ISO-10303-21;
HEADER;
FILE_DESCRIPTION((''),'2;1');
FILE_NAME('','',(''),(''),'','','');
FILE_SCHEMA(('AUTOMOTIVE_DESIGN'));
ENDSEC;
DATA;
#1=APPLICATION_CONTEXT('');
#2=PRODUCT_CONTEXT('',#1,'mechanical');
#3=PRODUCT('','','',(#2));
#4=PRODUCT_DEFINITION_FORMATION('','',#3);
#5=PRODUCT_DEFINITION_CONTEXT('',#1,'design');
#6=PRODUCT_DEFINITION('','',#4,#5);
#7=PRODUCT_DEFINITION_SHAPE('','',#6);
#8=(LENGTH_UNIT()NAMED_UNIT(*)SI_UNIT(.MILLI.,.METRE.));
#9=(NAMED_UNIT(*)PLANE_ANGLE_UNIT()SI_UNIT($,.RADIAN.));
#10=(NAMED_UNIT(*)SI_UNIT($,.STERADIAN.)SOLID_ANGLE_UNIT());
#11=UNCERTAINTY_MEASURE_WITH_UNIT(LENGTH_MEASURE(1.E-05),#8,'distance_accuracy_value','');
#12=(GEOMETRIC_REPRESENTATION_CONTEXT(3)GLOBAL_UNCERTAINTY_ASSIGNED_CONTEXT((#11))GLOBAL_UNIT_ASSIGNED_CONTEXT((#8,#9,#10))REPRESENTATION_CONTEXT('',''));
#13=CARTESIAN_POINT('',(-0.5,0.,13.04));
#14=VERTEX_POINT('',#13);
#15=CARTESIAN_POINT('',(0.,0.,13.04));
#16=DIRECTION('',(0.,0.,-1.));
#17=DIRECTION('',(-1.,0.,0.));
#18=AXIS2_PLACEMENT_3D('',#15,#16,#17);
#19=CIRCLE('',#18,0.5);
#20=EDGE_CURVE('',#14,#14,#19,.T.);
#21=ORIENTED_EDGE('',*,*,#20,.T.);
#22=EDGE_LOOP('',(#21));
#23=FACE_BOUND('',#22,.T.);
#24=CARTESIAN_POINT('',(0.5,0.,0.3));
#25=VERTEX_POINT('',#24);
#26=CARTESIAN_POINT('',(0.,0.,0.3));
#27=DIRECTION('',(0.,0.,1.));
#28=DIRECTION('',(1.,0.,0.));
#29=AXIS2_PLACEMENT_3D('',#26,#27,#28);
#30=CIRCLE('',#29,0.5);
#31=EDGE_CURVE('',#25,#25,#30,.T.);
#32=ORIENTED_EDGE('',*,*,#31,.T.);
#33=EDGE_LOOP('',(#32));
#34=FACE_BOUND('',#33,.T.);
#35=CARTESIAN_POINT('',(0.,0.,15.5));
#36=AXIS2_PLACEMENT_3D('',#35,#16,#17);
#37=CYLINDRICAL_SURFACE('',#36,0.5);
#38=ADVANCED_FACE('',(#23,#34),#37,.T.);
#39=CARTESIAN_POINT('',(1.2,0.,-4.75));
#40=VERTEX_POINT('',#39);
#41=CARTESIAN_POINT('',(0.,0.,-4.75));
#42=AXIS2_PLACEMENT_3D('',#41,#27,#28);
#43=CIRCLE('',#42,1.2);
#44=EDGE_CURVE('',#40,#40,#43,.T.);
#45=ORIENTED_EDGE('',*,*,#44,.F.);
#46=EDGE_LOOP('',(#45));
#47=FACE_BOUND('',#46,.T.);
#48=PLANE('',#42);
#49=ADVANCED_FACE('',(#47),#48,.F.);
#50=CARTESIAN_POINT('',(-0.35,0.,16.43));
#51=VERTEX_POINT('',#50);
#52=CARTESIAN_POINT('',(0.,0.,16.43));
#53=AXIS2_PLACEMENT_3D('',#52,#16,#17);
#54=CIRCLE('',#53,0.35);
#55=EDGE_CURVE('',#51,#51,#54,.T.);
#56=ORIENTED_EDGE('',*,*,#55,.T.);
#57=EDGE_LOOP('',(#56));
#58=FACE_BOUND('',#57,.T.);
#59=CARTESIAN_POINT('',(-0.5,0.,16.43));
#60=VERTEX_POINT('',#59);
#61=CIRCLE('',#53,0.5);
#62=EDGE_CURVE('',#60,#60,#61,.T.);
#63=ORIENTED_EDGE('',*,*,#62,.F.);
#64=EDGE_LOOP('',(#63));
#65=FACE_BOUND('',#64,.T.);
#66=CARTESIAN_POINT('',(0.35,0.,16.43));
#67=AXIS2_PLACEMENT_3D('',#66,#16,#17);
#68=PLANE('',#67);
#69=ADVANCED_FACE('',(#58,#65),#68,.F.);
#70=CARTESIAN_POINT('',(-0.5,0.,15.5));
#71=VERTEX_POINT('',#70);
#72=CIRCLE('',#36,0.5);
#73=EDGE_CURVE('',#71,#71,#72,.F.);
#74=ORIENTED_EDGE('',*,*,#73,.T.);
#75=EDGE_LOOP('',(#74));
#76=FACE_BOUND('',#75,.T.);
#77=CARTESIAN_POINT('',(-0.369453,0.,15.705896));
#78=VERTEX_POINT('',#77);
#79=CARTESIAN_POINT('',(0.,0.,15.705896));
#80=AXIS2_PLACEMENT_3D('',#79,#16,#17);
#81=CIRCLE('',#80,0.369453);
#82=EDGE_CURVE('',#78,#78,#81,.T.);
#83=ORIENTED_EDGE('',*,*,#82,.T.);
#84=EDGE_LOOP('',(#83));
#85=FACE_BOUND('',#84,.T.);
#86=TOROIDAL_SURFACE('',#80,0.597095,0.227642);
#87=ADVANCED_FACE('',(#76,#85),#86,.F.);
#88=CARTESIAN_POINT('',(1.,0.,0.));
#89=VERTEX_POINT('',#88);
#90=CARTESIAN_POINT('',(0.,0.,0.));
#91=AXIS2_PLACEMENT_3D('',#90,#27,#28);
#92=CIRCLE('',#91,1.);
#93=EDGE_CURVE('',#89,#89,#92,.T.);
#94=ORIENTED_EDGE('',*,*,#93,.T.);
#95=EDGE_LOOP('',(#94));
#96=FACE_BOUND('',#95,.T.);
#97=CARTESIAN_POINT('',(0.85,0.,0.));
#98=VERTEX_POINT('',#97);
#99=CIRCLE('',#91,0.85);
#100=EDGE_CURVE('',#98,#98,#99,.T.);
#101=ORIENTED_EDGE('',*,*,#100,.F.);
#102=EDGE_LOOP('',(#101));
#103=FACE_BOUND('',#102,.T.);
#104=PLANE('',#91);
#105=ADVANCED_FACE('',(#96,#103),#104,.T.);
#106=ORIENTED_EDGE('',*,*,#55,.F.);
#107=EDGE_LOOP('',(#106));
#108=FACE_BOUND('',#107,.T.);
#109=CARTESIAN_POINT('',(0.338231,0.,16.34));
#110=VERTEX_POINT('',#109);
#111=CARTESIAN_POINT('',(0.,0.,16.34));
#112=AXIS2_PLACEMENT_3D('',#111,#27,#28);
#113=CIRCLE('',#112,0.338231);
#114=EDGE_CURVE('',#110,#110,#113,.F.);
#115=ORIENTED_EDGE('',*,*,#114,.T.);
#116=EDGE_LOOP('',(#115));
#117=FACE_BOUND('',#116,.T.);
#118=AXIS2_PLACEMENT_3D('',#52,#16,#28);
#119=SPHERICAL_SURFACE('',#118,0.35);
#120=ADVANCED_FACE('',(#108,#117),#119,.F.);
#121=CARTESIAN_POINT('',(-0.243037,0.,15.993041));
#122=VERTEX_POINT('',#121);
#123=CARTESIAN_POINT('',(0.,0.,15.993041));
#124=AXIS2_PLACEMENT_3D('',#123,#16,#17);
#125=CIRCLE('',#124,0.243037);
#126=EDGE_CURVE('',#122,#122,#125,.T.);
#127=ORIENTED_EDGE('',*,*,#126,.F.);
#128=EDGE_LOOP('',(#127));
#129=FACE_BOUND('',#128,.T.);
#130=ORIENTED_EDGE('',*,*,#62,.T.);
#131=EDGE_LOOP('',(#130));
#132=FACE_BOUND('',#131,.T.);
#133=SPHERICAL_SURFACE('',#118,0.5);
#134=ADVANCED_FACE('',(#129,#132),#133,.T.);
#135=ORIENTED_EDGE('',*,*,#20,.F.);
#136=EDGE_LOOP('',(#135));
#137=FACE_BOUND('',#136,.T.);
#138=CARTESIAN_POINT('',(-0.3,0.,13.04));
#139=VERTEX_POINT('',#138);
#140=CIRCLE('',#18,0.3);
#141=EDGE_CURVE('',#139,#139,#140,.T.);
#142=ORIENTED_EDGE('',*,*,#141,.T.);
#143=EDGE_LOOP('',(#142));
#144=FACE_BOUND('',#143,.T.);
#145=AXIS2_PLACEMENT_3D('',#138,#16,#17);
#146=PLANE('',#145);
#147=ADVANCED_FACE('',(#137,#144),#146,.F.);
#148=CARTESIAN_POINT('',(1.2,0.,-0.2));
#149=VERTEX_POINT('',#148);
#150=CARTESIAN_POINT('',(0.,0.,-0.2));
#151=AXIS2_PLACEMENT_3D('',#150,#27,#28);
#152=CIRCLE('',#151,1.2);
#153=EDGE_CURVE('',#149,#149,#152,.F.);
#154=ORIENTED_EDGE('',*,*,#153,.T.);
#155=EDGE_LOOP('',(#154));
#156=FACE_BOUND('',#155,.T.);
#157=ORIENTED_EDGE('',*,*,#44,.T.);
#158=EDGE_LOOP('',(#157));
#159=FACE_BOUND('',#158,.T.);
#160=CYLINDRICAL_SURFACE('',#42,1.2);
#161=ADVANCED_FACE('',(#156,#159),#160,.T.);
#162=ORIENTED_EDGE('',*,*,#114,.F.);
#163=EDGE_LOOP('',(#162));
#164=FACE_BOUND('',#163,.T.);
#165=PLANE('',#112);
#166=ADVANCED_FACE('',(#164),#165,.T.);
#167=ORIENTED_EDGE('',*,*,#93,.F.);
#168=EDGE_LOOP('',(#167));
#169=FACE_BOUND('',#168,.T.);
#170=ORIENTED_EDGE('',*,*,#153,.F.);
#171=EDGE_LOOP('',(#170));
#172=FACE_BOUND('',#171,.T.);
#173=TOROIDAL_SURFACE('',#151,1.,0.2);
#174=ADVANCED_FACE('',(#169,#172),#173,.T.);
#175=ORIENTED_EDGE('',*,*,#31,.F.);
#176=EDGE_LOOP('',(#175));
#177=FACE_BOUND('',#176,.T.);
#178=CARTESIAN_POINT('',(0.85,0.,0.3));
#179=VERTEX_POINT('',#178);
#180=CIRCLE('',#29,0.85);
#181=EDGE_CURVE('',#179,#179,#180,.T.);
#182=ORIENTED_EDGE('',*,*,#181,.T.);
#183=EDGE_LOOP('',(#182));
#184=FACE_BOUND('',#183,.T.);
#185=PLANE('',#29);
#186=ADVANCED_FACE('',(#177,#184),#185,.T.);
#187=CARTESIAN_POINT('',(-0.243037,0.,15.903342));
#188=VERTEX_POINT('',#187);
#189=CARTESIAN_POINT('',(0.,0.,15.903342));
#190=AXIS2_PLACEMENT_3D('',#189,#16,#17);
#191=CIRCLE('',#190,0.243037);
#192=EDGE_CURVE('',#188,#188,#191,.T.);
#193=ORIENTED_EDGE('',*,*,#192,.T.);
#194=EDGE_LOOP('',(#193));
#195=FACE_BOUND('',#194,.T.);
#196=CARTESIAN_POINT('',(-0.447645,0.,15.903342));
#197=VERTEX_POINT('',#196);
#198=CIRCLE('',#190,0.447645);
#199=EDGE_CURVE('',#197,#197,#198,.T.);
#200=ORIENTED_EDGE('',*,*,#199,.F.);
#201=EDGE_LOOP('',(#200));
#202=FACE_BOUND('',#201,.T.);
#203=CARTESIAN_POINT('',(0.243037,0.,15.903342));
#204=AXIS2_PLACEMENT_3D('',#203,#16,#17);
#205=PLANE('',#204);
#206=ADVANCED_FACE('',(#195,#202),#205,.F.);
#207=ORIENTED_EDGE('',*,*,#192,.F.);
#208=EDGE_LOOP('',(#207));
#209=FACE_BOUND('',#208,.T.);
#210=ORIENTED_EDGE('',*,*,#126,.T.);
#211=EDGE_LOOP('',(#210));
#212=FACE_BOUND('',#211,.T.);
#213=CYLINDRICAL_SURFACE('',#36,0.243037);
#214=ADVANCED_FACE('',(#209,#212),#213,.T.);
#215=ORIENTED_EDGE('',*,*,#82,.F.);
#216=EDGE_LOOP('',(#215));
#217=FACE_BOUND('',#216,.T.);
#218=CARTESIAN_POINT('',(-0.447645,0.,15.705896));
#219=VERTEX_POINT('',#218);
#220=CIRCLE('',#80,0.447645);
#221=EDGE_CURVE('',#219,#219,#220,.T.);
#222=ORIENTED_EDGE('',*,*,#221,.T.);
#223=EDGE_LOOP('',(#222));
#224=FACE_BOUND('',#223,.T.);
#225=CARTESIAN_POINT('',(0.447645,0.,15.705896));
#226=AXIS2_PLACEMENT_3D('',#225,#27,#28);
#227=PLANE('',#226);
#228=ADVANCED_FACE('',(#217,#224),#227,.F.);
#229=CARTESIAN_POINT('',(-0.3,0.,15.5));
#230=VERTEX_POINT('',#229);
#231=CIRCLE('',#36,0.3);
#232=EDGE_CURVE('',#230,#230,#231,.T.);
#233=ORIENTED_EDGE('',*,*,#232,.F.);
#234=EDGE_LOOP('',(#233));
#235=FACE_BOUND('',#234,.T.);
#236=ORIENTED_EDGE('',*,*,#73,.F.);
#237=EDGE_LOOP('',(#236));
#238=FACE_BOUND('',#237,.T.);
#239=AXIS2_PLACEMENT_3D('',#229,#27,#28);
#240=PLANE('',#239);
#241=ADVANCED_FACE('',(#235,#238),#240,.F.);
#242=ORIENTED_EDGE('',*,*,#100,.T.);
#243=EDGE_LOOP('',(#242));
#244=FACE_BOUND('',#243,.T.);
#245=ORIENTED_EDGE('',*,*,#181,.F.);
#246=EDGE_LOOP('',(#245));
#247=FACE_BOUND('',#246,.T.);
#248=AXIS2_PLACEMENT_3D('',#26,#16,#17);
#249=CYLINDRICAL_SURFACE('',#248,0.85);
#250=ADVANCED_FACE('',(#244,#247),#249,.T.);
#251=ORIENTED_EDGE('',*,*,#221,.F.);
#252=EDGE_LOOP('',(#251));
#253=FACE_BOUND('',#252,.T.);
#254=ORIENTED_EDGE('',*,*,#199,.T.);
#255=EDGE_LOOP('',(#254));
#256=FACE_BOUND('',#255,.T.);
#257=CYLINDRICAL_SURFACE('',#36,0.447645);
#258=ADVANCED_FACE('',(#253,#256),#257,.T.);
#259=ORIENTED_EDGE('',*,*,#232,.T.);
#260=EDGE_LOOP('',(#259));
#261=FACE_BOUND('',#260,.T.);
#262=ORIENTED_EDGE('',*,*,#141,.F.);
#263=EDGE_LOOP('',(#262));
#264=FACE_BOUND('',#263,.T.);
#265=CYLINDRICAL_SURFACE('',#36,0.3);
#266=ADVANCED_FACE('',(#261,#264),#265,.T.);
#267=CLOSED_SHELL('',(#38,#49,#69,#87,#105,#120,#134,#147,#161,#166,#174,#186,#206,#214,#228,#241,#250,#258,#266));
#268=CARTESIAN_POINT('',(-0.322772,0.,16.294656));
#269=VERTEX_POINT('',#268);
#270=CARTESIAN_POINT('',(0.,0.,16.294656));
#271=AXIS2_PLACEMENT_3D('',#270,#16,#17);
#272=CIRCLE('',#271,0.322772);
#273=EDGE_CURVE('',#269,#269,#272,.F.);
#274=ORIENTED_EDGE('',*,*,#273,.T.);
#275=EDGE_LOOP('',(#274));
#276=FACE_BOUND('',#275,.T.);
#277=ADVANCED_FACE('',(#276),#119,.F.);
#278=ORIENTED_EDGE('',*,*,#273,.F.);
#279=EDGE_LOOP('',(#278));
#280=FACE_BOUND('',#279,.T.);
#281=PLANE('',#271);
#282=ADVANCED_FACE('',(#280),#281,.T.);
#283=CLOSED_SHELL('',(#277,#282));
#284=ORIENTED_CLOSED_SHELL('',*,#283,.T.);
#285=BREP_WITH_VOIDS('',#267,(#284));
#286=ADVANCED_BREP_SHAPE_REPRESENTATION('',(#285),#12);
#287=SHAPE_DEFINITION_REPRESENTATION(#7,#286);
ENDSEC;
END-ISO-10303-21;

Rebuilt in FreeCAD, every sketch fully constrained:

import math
import FreeCAD as App
import Part
import Sketcher


def edges_at(feature, points):
    """Names of the edges that pass closest to the given points."""
    edges = feature.Shape.Edges
    near = lambda p: min(range(len(edges)), key=lambda i: edges[i].distToShape(Part.Vertex(*p))[0])
    return sorted({f"Edge{near(p) + 1}" for p in points})

doc = App.newDocument("Part")
params = doc.addObject("Spreadsheet::Sheet", "Params")
for row, (alias, value) in enumerate([
    ("sketch1_diameter", "1 mm"),
    ("pad1_length", "15.5 mm"),
    ("sketch2_diameter", "2.4 mm"),
    ("pad2_length", "4.75 mm"),
    ("fillet_radius", "0.2 mm"),
    ("sketch3_diameter", "1.7 mm"),
    ("pad3_length", "0.3 mm"),
    ("sketch4_radius", "0.5 mm"),
    ("sketch4_radius2", "0.35 mm"),
    ("sketch4_height", "0.58 mm"),
    ("revolution_angle", "360 deg"),
    ("revolution2_angle", "360 deg"),
    ("sketch6_height", "2.46 mm"),
    ("groove_angle", "360 deg"),
], start=1):
    params.set(f"A{row}", alias)
    params.set(f"B{row}", "=" + value)
    params.setAlias(f"B{row}", alias)

body = doc.addObject("PartDesign::Body", "Body")

# Sketch on XY plane
sketch1 = body.newObject("Sketcher::SketchObject", "Sketch")
sketch1.AttachmentSupport = (doc.getObject("XY_Plane"), [""])
sketch1.MapMode = "FlatFace"
sketch1.addGeometry(Part.Circle(App.Vector(0, 0, 0), App.Vector(0, 0, 1), 0.5), False)
sketch1.addConstraint(Sketcher.Constraint("Coincident", 0, 3, -1, 1))
sketch1.addConstraint(Sketcher.Constraint("Diameter", 0, 1.0))
sketch1.setExpression("Constraints[1]", "Params.sketch1_diameter")
pad1 = body.newObject("PartDesign::Pad", "Pad")
pad1.Profile = sketch1
pad1.setExpression("Length", "Params.pad1_length")
body2 = doc.addObject("PartDesign::Body", "Body001")

# Sketch on XY plane
sketch2 = body2.newObject("Sketcher::SketchObject", "Sketch001")
sketch2.AttachmentSupport = (doc.getObject("XY_Plane001"), [""])
sketch2.MapMode = "FlatFace"
sketch2.addGeometry(Part.Circle(App.Vector(0, 0, 0), App.Vector(0, 0, 1), 1.2), False)
sketch2.addConstraint(Sketcher.Constraint("Coincident", 0, 3, -1, 1))
sketch2.addConstraint(Sketcher.Constraint("Diameter", 0, 2.4))
sketch2.setExpression("Constraints[1]", "Params.sketch2_diameter")
pad2 = body2.newObject("PartDesign::Pad", "Pad001")
pad2.Profile = sketch2
pad2.setExpression("Length", "Params.pad2_length")
pad2.Reversed = True
doc.recompute()

fillet = body2.newObject("PartDesign::Fillet", "Fillet")
fillet.Base = (pad2, edges_at(pad2, [(-1.2, 0, 0)]))
fillet.setExpression("Radius", "Params.fillet_radius")
doc.recompute()

boolean = body.newObject("PartDesign::Boolean", "Boolean")
boolean.Type = "Fuse"
boolean.addObjects([body2])

# Sketch on XY plane
sketch3 = body.newObject("Sketcher::SketchObject", "Sketch002")
sketch3.AttachmentSupport = (doc.getObject("XY_Plane"), [""])
sketch3.MapMode = "FlatFace"
sketch3.addGeometry(Part.Circle(App.Vector(0, 0, 0), App.Vector(0, 0, 1), 0.85), False)
sketch3.addConstraint(Sketcher.Constraint("Coincident", 0, 3, -1, 1))
sketch3.addConstraint(Sketcher.Constraint("Diameter", 0, 1.7))
sketch3.setExpression("Constraints[1]", "Params.sketch3_diameter")
pad3 = body.newObject("PartDesign::Pad", "Pad002")
pad3.Profile = sketch3
pad3.setExpression("Length", "Params.pad3_length")

# Sketch on XZ plane
sketch4 = body.newObject("Sketcher::SketchObject", "Sketch003")
sketch4.AttachmentSupport = (doc.getObject("XZ_Plane"), [""])
sketch4.MapMode = "FlatFace"
sketch4.addGeometry(Part.LineSegment(App.Vector(0.5, 15.5, 0), App.Vector(0, 15.5, 0)), False)
sketch4.addGeometry(Part.LineSegment(App.Vector(0, 15.5, 0), App.Vector(0, 16.08, 0)), False)
sketch4.addGeometry(Part.ArcOfCircle(Part.Circle(App.Vector(0, 16.43, 0), App.Vector(0, 0, 1), 0.35), math.radians(-90), math.radians(0)), False)
sketch4.addGeometry(Part.LineSegment(App.Vector(0.35, 16.43, 0), App.Vector(0.5, 16.43, 0)), False)
sketch4.addGeometry(Part.ArcOfCircle(Part.Circle(App.Vector(0, 16.43, 0), App.Vector(0, 0, 1), 0.5), math.radians(-60.917173), math.radians(0)), False)
sketch4.addGeometry(Part.LineSegment(App.Vector(0.243037, 15.993041, 0), App.Vector(0.243037, 15.903342, 0)), False)
sketch4.addGeometry(Part.LineSegment(App.Vector(0.243037, 15.903342, 0), App.Vector(0.447645, 15.903342, 0)), False)
sketch4.addGeometry(Part.LineSegment(App.Vector(0.447645, 15.903342, 0), App.Vector(0.447645, 15.705896, 0)), False)
sketch4.addGeometry(Part.LineSegment(App.Vector(0.447645, 15.705896, 0), App.Vector(0.369453, 15.705896, 0)), False)
sketch4.addGeometry(Part.ArcOfCircle(Part.Circle(App.Vector(0.597095, 15.705896, 0), App.Vector(0, 0, 1), 0.227642), math.radians(180), math.radians(244.752718)), False)
sketch4.addConstraint(Sketcher.Constraint("Coincident", 0, 2, 1, 1))
sketch4.addConstraint(Sketcher.Constraint("Coincident", 1, 2, 2, 1))
sketch4.addConstraint(Sketcher.Constraint("Coincident", 2, 2, 3, 1))
sketch4.addConstraint(Sketcher.Constraint("Coincident", 3, 2, 4, 2))
sketch4.addConstraint(Sketcher.Constraint("Coincident", 4, 1, 5, 1))
sketch4.addConstraint(Sketcher.Constraint("Coincident", 5, 2, 6, 1))
sketch4.addConstraint(Sketcher.Constraint("Coincident", 6, 2, 7, 1))
sketch4.addConstraint(Sketcher.Constraint("Coincident", 7, 2, 8, 1))
sketch4.addConstraint(Sketcher.Constraint("Coincident", 8, 2, 9, 1))
sketch4.addConstraint(Sketcher.Constraint("Coincident", 9, 2, 0, 1))
sketch4.addConstraint(Sketcher.Constraint("Horizontal", 0))
sketch4.addConstraint(Sketcher.Constraint("Vertical", 1))
sketch4.addConstraint(Sketcher.Constraint("Horizontal", 3))
sketch4.addConstraint(Sketcher.Constraint("Vertical", 5))
sketch4.addConstraint(Sketcher.Constraint("Horizontal", 6))
sketch4.addConstraint(Sketcher.Constraint("Vertical", 7))
sketch4.addConstraint(Sketcher.Constraint("Horizontal", 8))
sketch4.addConstraint(Sketcher.Constraint("Coincident", 4, 3, 2, 3))
sketch4.addConstraint(Sketcher.Constraint("PointOnObject", 2, 3, -2))
sketch4.addConstraint(Sketcher.Constraint("PointOnObject", 0, 2, -2))
sketch4.addConstraint(Sketcher.Constraint("Horizontal", 4, 3, 2, 2))
sketch4.addConstraint(Sketcher.Constraint("Horizontal", 9, 3, 7, 2))
sketch4.addConstraint(Sketcher.Constraint("Vertical", 3, 2, 9, 2))
sketch4.addConstraint(Sketcher.Constraint("Radius", 4, 0.5))
sketch4.addConstraint(Sketcher.Constraint("Radius", 2, 0.35))
sketch4.addConstraint(Sketcher.Constraint("DistanceY", 1, 1, 1, 2, 0.58))
sketch4.addConstraint(Sketcher.Constraint("DistanceY", -1, 1, 0, 2, 15.5))
sketch4.addConstraint(Sketcher.Constraint("Radius", 9, 0.227642))
sketch4.addConstraint(Sketcher.Constraint("DistanceY", 5, 2, 5, 1, 0.089699))
sketch4.addConstraint(Sketcher.Constraint("DistanceX", 6, 1, 6, 2, 0.204608))
sketch4.addConstraint(Sketcher.Constraint("DistanceX", 8, 2, 8, 1, 0.078192))
sketch4.addConstraint(Sketcher.Constraint("DistanceY", 7, 2, 7, 1, 0.197446))
sketch4.setExpression("Constraints[23]", "Params.sketch4_radius")
sketch4.setExpression("Constraints[24]", "Params.sketch4_radius2")
sketch4.setExpression("Constraints[25]", "Params.sketch4_height")
revolution = body.newObject("PartDesign::Revolution", "Revolution")
revolution.Profile = sketch4
revolution.ReferenceAxis = (sketch4, ["V_Axis"])
revolution.setExpression("Angle", "Params.revolution_angle")

# Sketch on XZ plane
sketch5 = body.newObject("Sketcher::SketchObject", "Sketch004")
sketch5.AttachmentSupport = (doc.getObject("XZ_Plane"), [""])
sketch5.MapMode = "FlatFace"
sketch5.addGeometry(Part.LineSegment(App.Vector(-0.461524, 16.294656, 0), App.Vector(-0.461524, 16.34, 0)), False)
sketch5.addGeometry(Part.LineSegment(App.Vector(-0.461524, 16.34, 0), App.Vector(0, 16.34, 0)), False)
sketch5.addGeometry(Part.LineSegment(App.Vector(0, 16.34, 0), App.Vector(0, 16.294656, 0)), False)
sketch5.addGeometry(Part.LineSegment(App.Vector(0, 16.294656, 0), App.Vector(-0.461524, 16.294656, 0)), False)
sketch5.addConstraint(Sketcher.Constraint("Coincident", 0, 2, 1, 1))
sketch5.addConstraint(Sketcher.Constraint("Coincident", 1, 2, 2, 1))
sketch5.addConstraint(Sketcher.Constraint("Coincident", 2, 2, 3, 1))
sketch5.addConstraint(Sketcher.Constraint("Coincident", 3, 2, 0, 1))
sketch5.addConstraint(Sketcher.Constraint("Vertical", 0))
sketch5.addConstraint(Sketcher.Constraint("Horizontal", 1))
sketch5.addConstraint(Sketcher.Constraint("Vertical", 2))
sketch5.addConstraint(Sketcher.Constraint("Horizontal", 3))
sketch5.addConstraint(Sketcher.Constraint("PointOnObject", 1, 2, -2))
sketch5.addConstraint(Sketcher.Constraint("DistanceY", -1, 1, 0, 2, 16.34))
sketch5.addConstraint(Sketcher.Constraint("DistanceX", 1, 1, 1, 2, 0.461524))
sketch5.addConstraint(Sketcher.Constraint("DistanceY", 0, 1, 0, 2, 0.045344))
revolution2 = body.newObject("PartDesign::Revolution", "Revolution001")
revolution2.Profile = sketch5
revolution2.ReferenceAxis = (sketch5, ["V_Axis"])
revolution2.setExpression("Angle", "Params.revolution2_angle")

# Sketch on XZ plane
sketch6 = body.newObject("Sketcher::SketchObject", "Sketch005")
sketch6.AttachmentSupport = (doc.getObject("XZ_Plane"), [""])
sketch6.MapMode = "FlatFace"
sketch6.addGeometry(Part.LineSegment(App.Vector(-0.900727, 13.04, 0), App.Vector(-0.900727, 15.5, 0)), False)
sketch6.addGeometry(Part.LineSegment(App.Vector(-0.900727, 15.5, 0), App.Vector(-0.3, 15.5, 0)), False)
sketch6.addGeometry(Part.LineSegment(App.Vector(-0.3, 15.5, 0), App.Vector(-0.3, 13.04, 0)), False)
sketch6.addGeometry(Part.LineSegment(App.Vector(-0.3, 13.04, 0), App.Vector(-0.900727, 13.04, 0)), False)
sketch6.addConstraint(Sketcher.Constraint("Coincident", 0, 2, 1, 1))
sketch6.addConstraint(Sketcher.Constraint("Coincident", 1, 2, 2, 1))
sketch6.addConstraint(Sketcher.Constraint("Coincident", 2, 2, 3, 1))
sketch6.addConstraint(Sketcher.Constraint("Coincident", 3, 2, 0, 1))
sketch6.addConstraint(Sketcher.Constraint("Vertical", 0))
sketch6.addConstraint(Sketcher.Constraint("Horizontal", 1))
sketch6.addConstraint(Sketcher.Constraint("Vertical", 2))
sketch6.addConstraint(Sketcher.Constraint("Horizontal", 3))
sketch6.addConstraint(Sketcher.Constraint("DistanceY", 0, 1, 0, 2, 2.46))
sketch6.addConstraint(Sketcher.Constraint("DistanceY", -1, 1, 0, 2, 15.5))
sketch6.addConstraint(Sketcher.Constraint("DistanceX", 1, 2, -1, 1, 0.3))
sketch6.addConstraint(Sketcher.Constraint("DistanceX", 1, 1, 1, 2, 0.600727))
sketch6.setExpression("Constraints[8]", "Params.sketch6_height")
groove = body.newObject("PartDesign::Groove", "Groove")
groove.Profile = sketch6
groove.ReferenceAxis = (sketch6, ["V_Axis"])
groove.setExpression("Angle", "Params.groove_angle")

doc.recompute()
